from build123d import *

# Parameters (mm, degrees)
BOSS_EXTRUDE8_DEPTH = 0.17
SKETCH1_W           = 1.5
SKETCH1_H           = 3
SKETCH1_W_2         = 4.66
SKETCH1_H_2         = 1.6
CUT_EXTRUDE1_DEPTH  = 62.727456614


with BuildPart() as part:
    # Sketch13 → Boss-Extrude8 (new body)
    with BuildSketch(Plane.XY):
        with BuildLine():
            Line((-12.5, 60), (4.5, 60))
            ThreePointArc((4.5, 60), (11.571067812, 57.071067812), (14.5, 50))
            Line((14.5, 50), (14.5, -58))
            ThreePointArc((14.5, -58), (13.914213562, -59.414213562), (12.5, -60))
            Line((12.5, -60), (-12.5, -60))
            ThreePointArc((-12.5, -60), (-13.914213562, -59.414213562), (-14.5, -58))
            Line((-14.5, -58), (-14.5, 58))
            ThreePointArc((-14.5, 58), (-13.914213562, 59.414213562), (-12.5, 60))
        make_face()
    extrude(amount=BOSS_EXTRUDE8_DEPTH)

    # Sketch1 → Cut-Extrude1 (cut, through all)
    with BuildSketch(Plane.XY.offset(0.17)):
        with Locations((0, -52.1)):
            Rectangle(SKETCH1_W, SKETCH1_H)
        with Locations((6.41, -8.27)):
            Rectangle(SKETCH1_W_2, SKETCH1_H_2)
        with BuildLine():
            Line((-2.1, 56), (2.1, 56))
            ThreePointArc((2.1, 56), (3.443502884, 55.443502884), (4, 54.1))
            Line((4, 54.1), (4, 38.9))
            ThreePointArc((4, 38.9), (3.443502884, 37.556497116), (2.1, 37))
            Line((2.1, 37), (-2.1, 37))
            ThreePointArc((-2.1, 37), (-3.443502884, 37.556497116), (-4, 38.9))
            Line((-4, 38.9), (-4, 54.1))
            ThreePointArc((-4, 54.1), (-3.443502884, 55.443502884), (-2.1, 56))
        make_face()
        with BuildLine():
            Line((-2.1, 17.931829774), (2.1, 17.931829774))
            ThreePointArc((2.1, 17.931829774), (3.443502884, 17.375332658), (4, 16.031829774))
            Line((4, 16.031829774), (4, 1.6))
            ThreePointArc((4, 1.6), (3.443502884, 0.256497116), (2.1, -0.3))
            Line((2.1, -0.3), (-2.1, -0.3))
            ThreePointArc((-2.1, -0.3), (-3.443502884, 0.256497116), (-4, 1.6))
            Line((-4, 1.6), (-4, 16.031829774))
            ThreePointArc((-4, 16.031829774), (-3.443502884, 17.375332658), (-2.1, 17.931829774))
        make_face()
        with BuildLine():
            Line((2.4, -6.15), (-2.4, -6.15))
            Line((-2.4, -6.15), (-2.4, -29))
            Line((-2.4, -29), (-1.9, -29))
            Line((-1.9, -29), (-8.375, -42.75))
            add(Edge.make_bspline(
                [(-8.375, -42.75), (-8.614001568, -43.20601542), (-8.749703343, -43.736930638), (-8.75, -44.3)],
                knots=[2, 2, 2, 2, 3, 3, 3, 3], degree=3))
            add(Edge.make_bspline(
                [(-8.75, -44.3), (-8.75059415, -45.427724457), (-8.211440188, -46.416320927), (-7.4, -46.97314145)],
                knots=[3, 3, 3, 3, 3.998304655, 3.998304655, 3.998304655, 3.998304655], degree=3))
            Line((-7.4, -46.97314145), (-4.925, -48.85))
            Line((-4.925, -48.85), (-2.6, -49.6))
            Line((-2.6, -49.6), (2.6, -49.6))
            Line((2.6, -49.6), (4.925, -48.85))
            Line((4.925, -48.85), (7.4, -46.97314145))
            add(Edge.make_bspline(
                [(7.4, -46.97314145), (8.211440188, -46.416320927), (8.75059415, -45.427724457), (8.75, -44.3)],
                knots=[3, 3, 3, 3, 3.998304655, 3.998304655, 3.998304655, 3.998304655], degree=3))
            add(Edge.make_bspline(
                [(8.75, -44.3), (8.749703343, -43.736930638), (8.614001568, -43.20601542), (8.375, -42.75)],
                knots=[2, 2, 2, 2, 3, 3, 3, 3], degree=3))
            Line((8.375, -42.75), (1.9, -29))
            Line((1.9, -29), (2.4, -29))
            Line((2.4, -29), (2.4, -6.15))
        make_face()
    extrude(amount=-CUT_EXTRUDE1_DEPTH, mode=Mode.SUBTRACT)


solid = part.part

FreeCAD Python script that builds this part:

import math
import FreeCAD as App
import Part
import Sketcher
from FreeCAD import Vector
Q = App.Units.Quantity

doc = App.newDocument("Part")
body = doc.addObject("PartDesign::Body", "Body")

# Sketch on XY plane
sketch1 = body.newObject("Sketcher::SketchObject", "Sketch")
sketch1.AttachmentSupport = (doc.getObject("XY_Plane"), [""])
sketch1.MapMode = "FlatFace"
sketch1.addGeometry([
    Part.LineSegment(Vector(4.5, 60, 0), Vector(-12.5, 60, 0)),  # 0
    Part.ArcOfCircle(Part.Circle(Vector(-12.5, 58, 0), Vector(0, 0, 1), 2), math.radians(90), math.radians(180)),  # 1
    Part.LineSegment(Vector(-14.5, 58, 0), Vector(-14.5, -58, 0)),  # 2
    Part.ArcOfCircle(Part.Circle(Vector(-12.5, -58, 0), Vector(0, 0, 1), 2), math.radians(-180), math.radians(-90)),  # 3
    Part.LineSegment(Vector(-12.5, -60, 0), Vector(12.5, -60, 0)),  # 4
    Part.ArcOfCircle(Part.Circle(Vector(12.5, -58, 0), Vector(0, 0, 1), 2), math.radians(-90), math.radians(0)),  # 5
    Part.LineSegment(Vector(14.5, -58, 0), Vector(14.5, 50, 0)),  # 6
    Part.ArcOfCircle(Part.Circle(Vector(4.5, 50, 0), Vector(0, 0, 1), 10), math.radians(0), math.radians(90)),  # 7
], False)
sketch1.addConstraint([
    Sketcher.Constraint("Tangent", 0, 2, 1, 1),
    Sketcher.Constraint("Tangent", 1, 2, 2, 1),
    Sketcher.Constraint("Tangent", 2, 2, 3, 1),
    Sketcher.Constraint("Tangent", 3, 2, 4, 1),
    Sketcher.Constraint("Tangent", 4, 2, 5, 1),
    Sketcher.Constraint("Tangent", 5, 2, 6, 1),
    Sketcher.Constraint("Tangent", 6, 2, 7, 1),
    Sketcher.Constraint("Tangent", 7, 2, 0, 1),
    Sketcher.Constraint("Horizontal", 0),
    Sketcher.Constraint("Vertical", 2),
    Sketcher.Constraint("Horizontal", 4),
    Sketcher.Constraint("Vertical", 6),
    Sketcher.Constraint("Equal", 1, 3),
    Sketcher.Constraint("Equal", 3, 5),
    Sketcher.Constraint("Symmetric", 1, 3, 5, 3, -1, 1),
    Sketcher.Constraint("Radius", 1, Q("2 mm")),
    Sketcher.Constraint("Radius", 7, Q("10 mm")),
    Sketcher.Constraint("DistanceX", 0, 2, 0, 1, Q("17 mm")),
    Sketcher.Constraint("DistanceY", 2, 2, 2, 1, Q("116 mm")),
])
pad1 = body.newObject("PartDesign::Pad", "Pad")
pad1.Profile = sketch1
pad1.Length = 0.17

# Sketch on XY plane
sketch2 = body.newObject("Sketcher::SketchObject", "Sketch001")
sketch2.AttachmentSupport = (doc.getObject("XY_Plane"), [""])
sketch2.MapMode = "FlatFace"
sketch2.AttachmentOffset = App.Placement(Vector(0, 0, 0.17), App.Rotation())
sketch2.addGeometry([
    Part.LineSegment(Vector(-0.75, -50.6, 0), Vector(-0.75, -53.6, 0)),  # 0
    Part.LineSegment(Vector(-0.75, -53.6, 0), Vector(0.75, -53.6, 0)),  # 1
    Part.LineSegment(Vector(0.75, -53.6, 0), Vector(0.75, -50.6, 0)),  # 2
    Part.LineSegment(Vector(0.75, -50.6, 0), Vector(-0.75, -50.6, 0)),  # 3
    Part.LineSegment(Vector(4.08, -7.47, 0), Vector(4.08, -9.07, 0)),  # 4
    Part.LineSegment(Vector(4.08, -9.07, 0), Vector(8.74, -9.07, 0)),  # 5
    Part.LineSegment(Vector(8.74, -9.07, 0), Vector(8.74, -7.47, 0)),  # 6
    Part.LineSegment(Vector(8.74, -7.47, 0), Vector(4.08, -7.47, 0)),  # 7
    Part.LineSegment(Vector(2.1, 56, 0), Vector(-2.1, 56, 0)),  # 8
    Part.ArcOfCircle(Part.Circle(Vector(-2.1, 54.1, 0), Vector(0, 0, 1), 1.9), math.radians(90), math.radians(180)),  # 9
    Part.LineSegment(Vector(-4, 54.1, 0), Vector(-4, 38.9, 0)),  # 10
    Part.ArcOfCircle(Part.Circle(Vector(-2.1, 38.9, 0), Vector(0, 0, 1), 1.9), math.radians(-180), math.radians(-90)),  # 11
    Part.LineSegment(Vector(-2.1, 37, 0), Vector(2.1, 37, 0)),  # 12
    Part.ArcOfCircle(Part.Circle(Vector(2.1, 38.9, 0), Vector(0, 0, 1), 1.9), math.radians(-90), math.radians(0)),  # 13
    Part.LineSegment(Vector(4, 38.9, 0), Vector(4, 54.1, 0)),  # 14
    Part.ArcOfCircle(Part.Circle(Vector(2.1, 54.1, 0), Vector(0, 0, 1), 1.9), math.radians(0), math.radians(90)),  # 15
    Part.LineSegment(Vector(2.1, 17.93183, 0), Vector(-2.1, 17.93183, 0)),  # 16
    Part.ArcOfCircle(Part.Circle(Vector(-2.1, 16.03183, 0), Vector(0, 0, 1), 1.9), math.radians(90), math.radians(180)),  # 17
    Part.LineSegment(Vector(-4, 16.03183, 0), Vector(-4, 1.6, 0)),  # 18
    Part.ArcOfCircle(Part.Circle(Vector(-2.1, 1.6, 0), Vector(0, 0, 1), 1.9), math.radians(-180), math.radians(-90)),  # 19
    Part.LineSegment(Vector(-2.1, -0.3, 0), Vector(2.1, -0.3, 0)),  # 20
    Part.ArcOfCircle(Part.Circle(Vector(2.1, 1.6, 0), Vector(0, 0, 1), 1.9), math.radians(-90), math.radians(0)),  # 21
    Part.LineSegment(Vector(4, 1.6, 0), Vector(4, 16.03183, 0)),  # 22
    Part.ArcOfCircle(Part.Circle(Vector(2.1, 16.03183, 0), Vector(0, 0, 1), 1.9), math.radians(0), math.radians(90)),  # 23
    Part.LineSegment(Vector(2.4, -6.15, 0), Vector(-2.4, -6.15, 0)),  # 24
    Part.LineSegment(Vector(-2.4, -6.15, 0), Vector(-2.4, -29, 0)),  # 25
    Part.LineSegment(Vector(-2.4, -29, 0), Vector(-1.9, -29, 0)),  # 26
    Part.LineSegment(Vector(-1.9, -29, 0), Vector(-8.375, -42.75, 0)),  # 27
    Part.BSplineCurve([Vector(-8.375, -42.75, 0), Vector(-8.614002, -43.206015, 0), Vector(-8.749703, -43.736931, 0), Vector(-8.75, -44.3, 0)], [4, 4], [2, 3], False, 3, [1, 1, 1, 1], False),  # 28
    Part.BSplineCurve([Vector(-8.75, -44.3, 0), Vector(-8.750594, -45.427724, 0), Vector(-8.21144, -46.416321, 0), Vector(-7.4, -46.973141, 0)], [4, 4], [3, 3.998304655], False, 3, [1, 1, 1, 1], False),  # 29
    Part.LineSegment(Vector(-7.4, -46.973141, 0), Vector(-4.925, -48.85, 0)),  # 30
    Part.LineSegment(Vector(-4.925, -48.85, 0), Vector(-2.6, -49.6, 0)),  # 31
    Part.LineSegment(Vector(-2.6, -49.6, 0), Vector(2.6, -49.6, 0)),  # 32
    Part.LineSegment(Vector(2.6, -49.6, 0), Vector(4.925, -48.85, 0)),  # 33
    Part.LineSegment(Vector(4.925, -48.85, 0), Vector(7.4, -46.973141, 0)),  # 34
    Part.BSplineCurve([Vector(7.4, -46.973141, 0), Vector(8.21144, -46.416321, 0), Vector(8.750594, -45.427724, 0), Vector(8.75, -44.3, 0)], [4, 4], [3, 3.998304655], False, 3, [1, 1, 1, 1], False),  # 35
    Part.BSplineCurve([Vector(8.75, -44.3, 0), Vector(8.749703, -43.736931, 0), Vector(8.614002, -43.206015, 0), Vector(8.375, -42.75, 0)], [4, 4], [2, 3], False, 3, [1, 1, 1, 1], False),  # 36
    Part.LineSegment(Vector(8.375, -42.75, 0), Vector(1.9, -29, 0)),  # 37
    Part.LineSegment(Vector(1.9, -29, 0), Vector(2.4, -29, 0)),  # 38
    Part.LineSegment(Vector(2.4, -29, 0), Vector(2.4, -6.15, 0)),  # 39
], False)
sketch2.addConstraint([
    Sketcher.Constraint("Block", 28),
    Sketcher.Constraint("Block", 29),
    Sketcher.Constraint("Block", 35),
    Sketcher.Constraint("Block", 36),
    Sketcher.Constraint("Coincident", 0, 2, 1, 1),
    Sketcher.Constraint("Coincident", 1, 2, 2, 1),
    Sketcher.Constraint("Coincident", 2, 2, 3, 1),
    Sketcher.Constraint("Coincident", 3, 2, 0, 1),
    Sketcher.Constraint("Coincident", 4, 2, 5, 1),
    Sketcher.Constraint("Coincident", 5, 2, 6, 1),
    Sketcher.Constraint("Coincident", 6, 2, 7, 1),
    Sketcher.Constraint("Coincident", 7, 2, 4, 1),
    Sketcher.Constraint("Tangent", 8, 2, 9, 1),
    Sketcher.Constraint("Tangent", 9, 2, 10, 1),
    Sketcher.Constraint("Tangent", 10, 2, 11, 1),
    Sketcher.Constraint("Tangent", 11, 2, 12, 1),
    Sketcher.Constraint("Tangent", 12, 2, 13, 1),
    Sketcher.Constraint("Tangent", 13, 2, 14, 1),
    Sketcher.Constraint("Tangent", 14, 2, 15, 1),
    Sketcher.Constraint("Tangent", 15, 2, 8, 1),
    Sketcher.Constraint("Tangent", 16, 2, 17, 1),
    Sketcher.Constraint("Tangent", 17, 2, 18, 1),
    Sketcher.Constraint("Tangent", 18, 2, 19, 1),
    Sketcher.Constraint("Tangent", 19, 2, 20, 1),
    Sketcher.Constraint("Tangent", 20, 2, 21, 1),
    Sketcher.Constraint("Tangent", 21, 2, 22, 1),
    Sketcher.Constraint("Tangent", 22, 2, 23, 1),
    Sketcher.Constraint("Tangent", 23, 2, 16, 1),
    Sketcher.Constraint("Coincident", 24, 2, 25, 1),
    Sketcher.Constraint("Coincident", 25, 2, 26, 1),
    Sketcher.Constraint("Coincident", 26, 2, 27, 1),
    Sketcher.Constraint("Coincident", 27, 2, 28, 1),
    Sketcher.Constraint("Coincident", 29, 2, 30, 1),
    Sketcher.Constraint("Coincident", 30, 2, 31, 1),
    Sketcher.Constraint("Coincident", 31, 2, 32, 1),
    Sketcher.Constraint("Coincident", 32, 2, 33, 1),
    Sketcher.Constraint("Coincident", 33, 2, 34, 1),
    Sketcher.Constraint("Coincident", 34, 2, 35, 1),
    Sketcher.Constraint("Coincident", 36, 2, 37, 1),
    Sketcher.Constraint("Coincident", 37, 2, 38, 1),
    Sketcher.Constraint("Coincident", 38, 2, 39, 1),
    Sketcher.Constraint("Coincident", 39, 2, 24, 1),
    Sketcher.Constraint("Vertical", 0),
    Sketcher.Constraint("Horizontal", 1),
    Sketcher.Constraint("Vertical", 2),
    Sketcher.Constraint("Horizontal", 3),
    Sketcher.Constraint("Vertical", 4),
    Sketcher.Constraint("Horizontal", 5),
    Sketcher.Constraint("Vertical", 6),
    Sketcher.Constraint("Horizontal", 7),
    Sketcher.Constraint("Horizontal", 8),
    Sketcher.Constraint("Vertical", 10),
    Sketcher.Constraint("Horizontal", 12),
    Sketcher.Constraint("Vertical", 14),
    Sketcher.Constraint("Horizontal", 16),
    Sketcher.Constraint("Vertical", 18),
    Sketcher.Constraint("Horizontal", 20),
    Sketcher.Constraint("Vertical", 22),
    Sketcher.Constraint("Horizontal", 24),
    Sketcher.Constraint("Vertical", 25),
    Sketcher.Constraint("Horizontal", 26),
    Sketcher.Constraint("Horizontal", 32),
    Sketcher.Constraint("Horizontal", 38),
    Sketcher.Constraint("Vertical", 39),
    Sketcher.Constraint("Equal", 9, 11),
    Sketcher.Constraint("Equal", 11, 13),
    Sketcher.Constraint("Equal", 13, 15),
    Sketcher.Constraint("Equal", 15, 17),
    Sketcher.Constraint("Equal", 17, 19),
    Sketcher.Constraint("Equal", 19, 21),
    Sketcher.Constraint("Equal", 21, 23),
    Sketcher.Constraint("Symmetric", 30, 2, 33, 2, -2),
    Sketcher.Constraint("Symmetric", 26, 2, 37, 2, -2),
    Sketcher.Constraint("Vertical", 11, 3, 17, 3),
    Sketcher.Constraint("Vertical", 15, 3, 21, 3),
    Sketcher.Constraint("Equal", 26, 38),
    Sketcher.Constraint("Equal", 31, 33),
    Sketcher.Constraint("Radius", 9, Q("1.9 mm")),
    Sketcher.Constraint("DistanceY", 0, 2, 0, 1, Q("3 mm")),
    Sketcher.Constraint("DistanceX", 1, 1, 1, 2, Q("1.5 mm")),
    Sketcher.Constraint("DistanceX", 8, 2, 8, 1, Q("4.2 mm")),
    Sketcher.Constraint("DistanceX", 24, 2, 24, 1, Q("4.8 mm")),
    Sketcher.Constraint("DistanceX", 26, 1, 26, 2, Q("0.5 mm")),
    Sketcher.Constraint("DistanceX", 32, 1, 32, 2, Q("5.2 mm")),
    Sketcher.Constraint("DistanceY", 4, 2, 4, 1, Q("1.6 mm")),
    Sketcher.Constraint("DistanceY", 10, 2, 10, 1, Q("15.2 mm")),
    Sketcher.Constraint("DistanceY", -1, 1, 8, 2, Q("56 mm")),
    Sketcher.Constraint("DistanceX", 9, 2, -1, 1, Q("4 mm")),
    Sketcher.Constraint("DistanceY", 25, 2, -1, 1, Q("29 mm")),
    Sketcher.Constraint("DistanceY", 3, 2, 31, 2, Q("1 mm")),
    Sketcher.Constraint("DistanceX", 5, 1, 5, 2, Q("4.66 mm")),
    Sketcher.Constraint("DistanceY", 25, 2, 25, 1, Q("22.85 mm")),
    Sketcher.Constraint("DistanceY", -1, 1, 19, 3, Q("1.6 mm")),
    Sketcher.Constraint("DistanceY", 0, 2, -1, 1, Q("53.6 mm")),
    Sketcher.Constraint("DistanceY", 30, 2, 27, 2, Q("6.1 mm")),
    Sketcher.Constraint("DistanceX", 0, 2, -1, 1, Q("0.75 mm")),
    Sketcher.Constraint("DistanceX", -1, 1, 4, 2, Q("4.08 mm")),
    Sketcher.Constraint("DistanceY", 4, 2, -1, 1, Q("9.07 mm")),
    Sketcher.Constraint("DistanceX", 27, 2, 30, 2, Q("3.45 mm")),
    Sketcher.Constraint("DistanceY", 18, 2, 18, 1, Q("14.43183 mm")),
])
pocket1 = body.newObject("PartDesign::Pocket", "Pocket")
pocket1.Profile = sketch2
pocket1.Type = "ThroughAll"

doc.recompute()
